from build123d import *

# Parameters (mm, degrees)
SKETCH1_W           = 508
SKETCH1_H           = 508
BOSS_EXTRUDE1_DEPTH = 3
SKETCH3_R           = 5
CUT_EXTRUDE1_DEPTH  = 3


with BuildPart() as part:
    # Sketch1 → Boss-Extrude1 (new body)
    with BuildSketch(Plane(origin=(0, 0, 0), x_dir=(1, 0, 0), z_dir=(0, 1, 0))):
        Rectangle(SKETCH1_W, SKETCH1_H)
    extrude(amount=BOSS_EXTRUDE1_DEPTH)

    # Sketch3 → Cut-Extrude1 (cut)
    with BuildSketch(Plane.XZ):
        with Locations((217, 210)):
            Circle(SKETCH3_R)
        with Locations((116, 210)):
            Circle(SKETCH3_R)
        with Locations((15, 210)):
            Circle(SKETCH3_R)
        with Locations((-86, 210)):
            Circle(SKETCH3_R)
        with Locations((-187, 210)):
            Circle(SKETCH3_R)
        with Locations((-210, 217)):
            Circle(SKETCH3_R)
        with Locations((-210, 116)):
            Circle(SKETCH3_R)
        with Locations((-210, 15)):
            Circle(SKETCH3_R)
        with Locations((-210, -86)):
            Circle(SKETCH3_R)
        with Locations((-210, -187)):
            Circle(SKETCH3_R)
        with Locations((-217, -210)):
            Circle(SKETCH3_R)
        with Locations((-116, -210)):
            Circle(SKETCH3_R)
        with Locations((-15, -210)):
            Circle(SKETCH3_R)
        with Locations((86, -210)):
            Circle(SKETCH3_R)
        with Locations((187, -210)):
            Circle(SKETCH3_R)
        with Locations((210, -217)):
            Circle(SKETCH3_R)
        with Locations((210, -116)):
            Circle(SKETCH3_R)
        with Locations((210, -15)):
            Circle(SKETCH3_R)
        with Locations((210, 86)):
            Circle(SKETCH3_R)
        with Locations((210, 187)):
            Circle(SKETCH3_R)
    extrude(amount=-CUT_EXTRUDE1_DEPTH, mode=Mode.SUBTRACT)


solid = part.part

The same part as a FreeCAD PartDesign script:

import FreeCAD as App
import Part
import Sketcher
from FreeCAD import Vector


def add_polygon(sketch, points):
    """Adds a closed chain of lines whose ends are joined by coincident constraints."""
    first, n = sketch.GeometryCount, len(points)
    for a, b in zip(points, points[1:] + points[:1]):
        sketch.addGeometry(Part.LineSegment(App.Vector(*a, 0), App.Vector(*b, 0)), False)
    for i in range(n):
        sketch.addConstraint(Sketcher.Constraint("Coincident", first + i, 2, first + (i + 1) % n, 1))

doc = App.newDocument("Part")
params = doc.addObject("Spreadsheet::Sheet", "Params")
for row, (alias, value) in enumerate([
    ("sketch1_width", "508 mm"),
    ("pad1_length", "3 mm"),
    ("sketch2_diameter", "10 mm"),
    ("pocket1_length", "3 mm"),
], start=1):
    params.set(f"A{row}", alias)
    params.set(f"B{row}", "=" + value)
    params.setAlias(f"B{row}", alias)

body = doc.addObject("PartDesign::Body", "Body")

sketch1 = body.newObject("Sketcher::SketchObject", "Sketch")
sketch1.AttachmentSupport = (doc.getObject("XZ_Plane"), [""])
sketch1.MapMode = "FlatFace"
add_polygon(sketch1, [(-254, -254), (-254, 254), (254, 254), (254, -254)])
sketch1.addConstraint([
    Sketcher.Constraint("Vertical", 0),
    Sketcher.Constraint("Horizontal", 1),
    Sketcher.Constraint("Vertical", 2),
    Sketcher.Constraint("Horizontal", 3),
    Sketcher.Constraint("Symmetric", 0, 2, 2, 2, -1, 1),
    Sketcher.Constraint("Equal", 3, 0),
    Sketcher.Constraint("DistanceX", 1, 1, 1, 2, 508.0),
])
sketch1.setExpression("Constraints[10]", "Params.sketch1_width")
pad1 = body.newObject("PartDesign::Pad", "Pad")
pad1.Profile = sketch1
pad1.setExpression("Length", "Params.pad1_length")
pad1.Reversed = True

sketch2 = body.newObject("Sketcher::SketchObject", "Sketch001")
sketch2.AttachmentSupport = (doc.getObject("XZ_Plane"), [""])
sketch2.MapMode = "FlatFace"
sketch2.addGeometry([
    Part.Circle(Vector(217, 210, 0), Vector(0, 0, 1), 5),
    Part.Circle(Vector(116, 210, 0), Vector(0, 0, 1), 5),
    Part.Circle(Vector(15, 210, 0), Vector(0, 0, 1), 5),
    Part.Circle(Vector(-86, 210, 0), Vector(0, 0, 1), 5),
    Part.Circle(Vector(-187, 210, 0), Vector(0, 0, 1), 5),
    Part.Circle(Vector(-210, 217, 0), Vector(0, 0, 1), 5),
    Part.Circle(Vector(-210, 116, 0), Vector(0, 0, 1), 5),
    Part.Circle(Vector(-210, 15, 0), Vector(0, 0, 1), 5),
    Part.Circle(Vector(-210, -86, 0), Vector(0, 0, 1), 5),
    Part.Circle(Vector(-210, -187, 0), Vector(0, 0, 1), 5),
    Part.Circle(Vector(-217, -210, 0), Vector(0, 0, 1), 5),
    Part.Circle(Vector(-116, -210, 0), Vector(0, 0, 1), 5),
    Part.Circle(Vector(-15, -210, 0), Vector(0, 0, 1), 5),
    Part.Circle(Vector(86, -210, 0), Vector(0, 0, 1), 5),
    Part.Circle(Vector(187, -210, 0), Vector(0, 0, 1), 5),
    Part.Circle(Vector(210, -217, 0), Vector(0, 0, 1), 5),
    Part.Circle(Vector(210, -116, 0), Vector(0, 0, 1), 5),
    Part.Circle(Vector(210, -15, 0), Vector(0, 0, 1), 5),
    Part.Circle(Vector(210, 86, 0), Vector(0, 0, 1), 5),
    Part.Circle(Vector(210, 187, 0), Vector(0, 0, 1), 5),
], False)
sketch2.addConstraint([
    Sketcher.Constraint("Equal", 0, 1),
    Sketcher.Constraint("Equal", 1, 2),
    Sketcher.Constraint("Equal", 2, 3),
    Sketcher.Constraint("Equal", 3, 4),
    Sketcher.Constraint("Equal", 4, 5),
    Sketcher.Constraint("Equal", 5, 6),
    Sketcher.Constraint("Equal", 6, 7),
    Sketcher.Constraint("Equal", 7, 8),
    Sketcher.Constraint("Equal", 8, 9),
    Sketcher.Constraint("Equal", 9, 10),
    Sketcher.Constraint("Equal", 10, 11),
    Sketcher.Constraint("Equal", 11, 12),
    Sketcher.Constraint("Equal", 12, 13),
    Sketcher.Constraint("Equal", 13, 14),
    Sketcher.Constraint("Equal", 14, 15),
    Sketcher.Constraint("Equal", 15, 16),
    Sketcher.Constraint("Equal", 16, 17),
    Sketcher.Constraint("Equal", 17, 18),
    Sketcher.Constraint("Equal", 18, 19),
    Sketcher.Constraint("Symmetric", 0, 3, 10, 3, -1, 1),
    Sketcher.Constraint("Symmetric", 1, 3, 11, 3, -1, 1),
    Sketcher.Constraint("Symmetric", 2, 3, 12, 3, -1, 1),
    Sketcher.Constraint("Symmetric", 3, 3, 13, 3, -1, 1),
    Sketcher.Constraint("Symmetric", 4, 3, 14, 3, -1, 1),
    Sketcher.Constraint("Symmetric", 5, 3, 15, 3, -1, 1),
    Sketcher.Constraint("Symmetric", 6, 3, 16, 3, -1, 1),
    Sketcher.Constraint("Symmetric", 7, 3, 17, 3, -1, 1),
    Sketcher.Constraint("Symmetric", 8, 3, 18, 3, -1, 1),
    Sketcher.Constraint("Symmetric", 9, 3, 19, 3, -1, 1),
    Sketcher.Constraint("Horizontal", 0, 3, 1, 3),
    Sketcher.Constraint("Horizontal", 1, 3, 2, 3),
    Sketcher.Constraint("Horizontal", 2, 3, 3, 3),
    Sketcher.Constraint("Horizontal", 3, 3, 4, 3),
    Sketcher.Constraint("Vertical", 5, 3, 6, 3),
    Sketcher.Constraint("Vertical", 6, 3, 7, 3),
    Sketcher.Constraint("Vertical", 7, 3, 8, 3),
    Sketcher.Constraint("Vertical", 8, 3, 9, 3),
    Sketcher.Constraint("Diameter", 0, 10.0),
    Sketcher.Constraint("DistanceX", -1, 1, 0, 3, 217.0),
    Sketcher.Constraint("DistanceY", -1, 1, 0, 3, 210.0),
    Sketcher.Constraint("DistanceX", -1, 1, 1, 3, 116.0),
    Sketcher.Constraint("DistanceX", -1, 1, 2, 3, 15.0),
    Sketcher.Constraint("DistanceX", 3, 3, -1, 1, 86.0),
    Sketcher.Constraint("DistanceX", 4, 3, -1, 1, 187.0),
    Sketcher.Constraint("DistanceX", 5, 3, -1, 1, 210.0),
    Sketcher.Constraint("DistanceY", -1, 1, 5, 3, 217.0),
    Sketcher.Constraint("DistanceY", -1, 1, 6, 3, 116.0),
    Sketcher.Constraint("DistanceY", -1, 1, 7, 3, 15.0),
    Sketcher.Constraint("DistanceY", 8, 3, -1, 1, 86.0),
    Sketcher.Constraint("DistanceY", 9, 3, -1, 1, 187.0),
])
sketch2.setExpression("Constraints[37]", "Params.sketch2_diameter")
pocket1 = body.newObject("PartDesign::Pocket", "Pocket")
pocket1.Profile = sketch2
pocket1.setExpression("Length", "Params.pocket1_length")

doc.recompute()
